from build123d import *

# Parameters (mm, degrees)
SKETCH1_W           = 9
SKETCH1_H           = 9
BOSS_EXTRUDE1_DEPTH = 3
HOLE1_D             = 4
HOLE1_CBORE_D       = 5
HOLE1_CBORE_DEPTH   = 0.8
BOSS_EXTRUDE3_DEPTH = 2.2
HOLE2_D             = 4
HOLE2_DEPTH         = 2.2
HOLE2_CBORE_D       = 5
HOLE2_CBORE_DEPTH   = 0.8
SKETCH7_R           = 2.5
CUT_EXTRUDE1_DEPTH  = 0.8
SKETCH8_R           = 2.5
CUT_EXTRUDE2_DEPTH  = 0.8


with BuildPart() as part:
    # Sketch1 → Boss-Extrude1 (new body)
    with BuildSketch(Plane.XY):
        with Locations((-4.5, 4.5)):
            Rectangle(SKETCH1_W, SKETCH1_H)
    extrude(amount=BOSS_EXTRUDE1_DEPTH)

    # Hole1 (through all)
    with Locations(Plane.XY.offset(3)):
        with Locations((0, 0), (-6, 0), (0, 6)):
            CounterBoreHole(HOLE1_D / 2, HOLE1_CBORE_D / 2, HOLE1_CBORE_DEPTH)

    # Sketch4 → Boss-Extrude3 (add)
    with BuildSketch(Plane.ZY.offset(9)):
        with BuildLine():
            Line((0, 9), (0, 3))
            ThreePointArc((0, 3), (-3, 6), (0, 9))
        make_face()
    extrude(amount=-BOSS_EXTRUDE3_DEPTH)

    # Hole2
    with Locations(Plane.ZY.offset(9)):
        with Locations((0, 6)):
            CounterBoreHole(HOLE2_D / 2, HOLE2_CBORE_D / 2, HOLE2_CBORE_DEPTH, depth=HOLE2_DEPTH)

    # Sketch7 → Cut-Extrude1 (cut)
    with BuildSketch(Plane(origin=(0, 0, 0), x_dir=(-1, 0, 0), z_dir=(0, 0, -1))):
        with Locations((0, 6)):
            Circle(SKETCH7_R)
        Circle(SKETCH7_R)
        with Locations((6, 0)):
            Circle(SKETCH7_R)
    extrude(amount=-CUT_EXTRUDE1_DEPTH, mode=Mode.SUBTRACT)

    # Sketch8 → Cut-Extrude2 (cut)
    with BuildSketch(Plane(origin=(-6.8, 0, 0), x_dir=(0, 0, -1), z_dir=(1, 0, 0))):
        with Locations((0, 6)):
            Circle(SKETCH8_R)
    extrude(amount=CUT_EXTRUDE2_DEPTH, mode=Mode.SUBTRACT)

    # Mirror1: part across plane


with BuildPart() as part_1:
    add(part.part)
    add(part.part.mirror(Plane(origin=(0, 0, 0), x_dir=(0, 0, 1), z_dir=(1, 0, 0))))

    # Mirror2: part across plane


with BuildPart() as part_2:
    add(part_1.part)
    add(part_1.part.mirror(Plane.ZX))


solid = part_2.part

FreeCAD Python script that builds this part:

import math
import FreeCAD as App
import Part
import Sketcher

doc = App.newDocument("Part")
body = doc.addObject("PartDesign::Body", "Body")

# Sketch on XY plane
sketch1 = body.newObject("Sketcher::SketchObject", "Sketch")
sketch1.AttachmentSupport = (doc.getObject("XY_Plane"), [""])
sketch1.MapMode = "FlatFace"
sketch1.addGeometry(Part.LineSegment(App.Vector(-9, 9, 0), App.Vector(-9, 0, 0)), False)
sketch1.addGeometry(Part.LineSegment(App.Vector(-9, 0, 0), App.Vector(0, 0, 0)), False)
sketch1.addGeometry(Part.LineSegment(App.Vector(0, 0, 0), App.Vector(0, 9, 0)), False)
sketch1.addGeometry(Part.LineSegment(App.Vector(0, 9, 0), App.Vector(-9, 9, 0)), False)
sketch1.addConstraint(Sketcher.Constraint("Coincident", 0, 2, 1, 1))
sketch1.addConstraint(Sketcher.Constraint("Coincident", 1, 2, 2, 1))
sketch1.addConstraint(Sketcher.Constraint("Coincident", 2, 2, 3, 1))
sketch1.addConstraint(Sketcher.Constraint("Coincident", 3, 2, 0, 1))
sketch1.addConstraint(Sketcher.Constraint("Vertical", 0))
sketch1.addConstraint(Sketcher.Constraint("Horizontal", 1))
sketch1.addConstraint(Sketcher.Constraint("Vertical", 2))
sketch1.addConstraint(Sketcher.Constraint("Horizontal", 3))
sketch1.addConstraint(Sketcher.Constraint("Coincident", 1, 2, -1, 1))
sketch1.addConstraint(Sketcher.Constraint("Equal", 3, 0))
sketch1.addConstraint(Sketcher.Constraint("DistanceX", 1, 1, 1, 2, 9.0))
pad1 = body.newObject("PartDesign::Pad", "Pad")
pad1.Profile = sketch1
pad1.Length = 3

# Sketch on XY plane
sketch2 = body.newObject("Sketcher::SketchObject", "Sketch001")
sketch2.AttachmentSupport = (doc.getObject("XY_Plane"), [""])
sketch2.MapMode = "FlatFace"
sketch2.AttachmentOffset = App.Placement(App.Vector(0, 0, 3), App.Rotation())
sketch2.addGeometry(Part.Circle(App.Vector(0, 0, 0), App.Vector(0, 0, 1), 2), False)
sketch2.addGeometry(Part.Circle(App.Vector(-6, 0, 0), App.Vector(0, 0, 1), 2), False)
sketch2.addGeometry(Part.Circle(App.Vector(0, 6, 0), App.Vector(0, 0, 1), 2), False)
sketch2.addConstraint(Sketcher.Constraint("Coincident", 0, 3, -1, 1))
sketch2.addConstraint(Sketcher.Constraint("Equal", 0, 1))
sketch2.addConstraint(Sketcher.Constraint("Equal", 1, 2))
sketch2.addConstraint(Sketcher.Constraint("PointOnObject", 1, 3, -1))
sketch2.addConstraint(Sketcher.Constraint("PointOnObject", 2, 3, -2))
sketch2.addConstraint(Sketcher.Constraint("Diameter", 0, 4.0))
sketch2.addConstraint(Sketcher.Constraint("DistanceX", 1, 3, -1, 1, 6.0))
sketch2.addConstraint(Sketcher.Constraint("DistanceY", -1, 1, 2, 3, 6.0))
doc.recompute()
hole = body.newObject("PartDesign::Hole", "Hole")
hole.Profile = sketch2
hole.ThreadType = "None"
hole.Diameter = 4
hole.DepthType = "ThroughAll"
hole.HoleCutType = "Counterbore"
hole.HoleCutDiameter = 5
hole.HoleCutDepth = 0.8

# Sketch on YZ plane
sketch3 = body.newObject("Sketcher::SketchObject", "Sketch002")
sketch3.AttachmentSupport = (doc.getObject("YZ_Plane"), [""])
sketch3.MapMode = "FlatFace"
sketch3.AttachmentOffset = App.Placement(App.Vector(0, 0, -9), App.Rotation())
sketch3.addGeometry(Part.LineSegment(App.Vector(3, 0, 0), App.Vector(9, 0, 0)), False)
sketch3.addGeometry(Part.ArcOfCircle(Part.Circle(App.Vector(6, 0, 0), App.Vector(0, 0, 1), 3), math.radians(180), math.radians(360)), False)
sketch3.addConstraint(Sketcher.Constraint("Coincident", 0, 1, 1, 1))
sketch3.addConstraint(Sketcher.Constraint("Coincident", 1, 2, 0, 2))
sketch3.addConstraint(Sketcher.Constraint("Horizontal", 0))
sketch3.addConstraint(Sketcher.Constraint("PointOnObject", 1, 3, -1))
sketch3.addConstraint(Sketcher.Constraint("PointOnObject", 0, 1, -1))
sketch3.addConstraint(Sketcher.Constraint("Radius", 1, 3.0))
sketch3.addConstraint(Sketcher.Constraint("DistanceX", -1, 1, 1, 3, 6.0))
pad2 = body.newObject("PartDesign::Pad", "Pad001")
pad2.Profile = sketch3
pad2.Length = 2.2

# Sketch on YZ plane
sketch4 = body.newObject("Sketcher::SketchObject", "Sketch003")
sketch4.AttachmentSupport = (doc.getObject("YZ_Plane"), [""])
sketch4.MapMode = "FlatFace"
sketch4.AttachmentOffset = App.Placement(App.Vector(0, 0, -9), App.Rotation())
sketch4.addGeometry(Part.Circle(App.Vector(6, 0, 0), App.Vector(0, 0, 1), 2), False)
sketch4.addConstraint(Sketcher.Constraint("PointOnObject", 0, 3, -1))
sketch4.addConstraint(Sketcher.Constraint("Diameter", 0, 4.0))
sketch4.addConstraint(Sketcher.Constraint("DistanceX", -1, 1, 0, 3, 6.0))
doc.recompute()
hole2 = body.newObject("PartDesign::Hole", "Hole001")
hole2.Profile = sketch4
hole2.ThreadType = "None"
hole2.Diameter = 4
hole2.DepthType = "Dimension"
hole2.Depth = 2.2
hole2.DrillPoint = "Flat"
hole2.HoleCutType = "Counterbore"
hole2.HoleCutDiameter = 5
hole2.HoleCutDepth = 0.8
hole2.Reversed = True

# Sketch on XY plane
sketch5 = body.newObject("Sketcher::SketchObject", "Sketch004")
sketch5.AttachmentSupport = (doc.getObject("XY_Plane"), [""])
sketch5.MapMode = "FlatFace"
sketch5.addGeometry(Part.Circle(App.Vector(0, 6, 0), App.Vector(0, 0, 1), 2.5), False)
sketch5.addGeometry(Part.Circle(App.Vector(0, 0, 0), App.Vector(0, 0, 1), 2.5), False)
sketch5.addGeometry(Part.Circle(App.Vector(-6, 0, 0), App.Vector(0, 0, 1), 2.5), False)
sketch5.addConstraint(Sketcher.Constraint("Coincident", 1, 3, -1, 1))
sketch5.addConstraint(Sketcher.Constraint("Equal", 0, 1))
sketch5.addConstraint(Sketcher.Constraint("Equal", 1, 2))
sketch5.addConstraint(Sketcher.Constraint("PointOnObject", 0, 3, -2))
sketch5.addConstraint(Sketcher.Constraint("PointOnObject", 2, 3, -1))
sketch5.addConstraint(Sketcher.Constraint("Diameter", 0, 5.0))
sketch5.addConstraint(Sketcher.Constraint("DistanceY", -1, 1, 0, 3, 6.0))
sketch5.addConstraint(Sketcher.Constraint("DistanceX", 2, 3, -1, 1, 6.0))
pocket1 = body.newObject("PartDesign::Pocket", "Pocket")
pocket1.Profile = sketch5
pocket1.Length = 0.8
pocket1.Reversed = True

# Sketch on YZ plane
sketch6 = body.newObject("Sketcher::SketchObject", "Sketch005")
sketch6.AttachmentSupport = (doc.getObject("YZ_Plane"), [""])
sketch6.MapMode = "FlatFace"
sketch6.AttachmentOffset = App.Placement(App.Vector(0, 0, -6.8), App.Rotation())
sketch6.addGeometry(Part.Circle(App.Vector(6, 0, 0), App.Vector(0, 0, 1), 2.5), False)
sketch6.addConstraint(Sketcher.Constraint("PointOnObject", 0, 3, -1))
sketch6.addConstraint(Sketcher.Constraint("Diameter", 0, 5.0))
sketch6.addConstraint(Sketcher.Constraint("DistanceX", -1, 1, 0, 3, 6.0))
pocket2 = body.newObject("PartDesign::Pocket", "Pocket001")
pocket2.Profile = sketch6
pocket2.Length = 0.8
pocket2.Reversed = True
body2 = doc.addObject("PartDesign::Body", "Body001")
doc.recompute()

body2.BaseFeature = body
doc.recompute()

mirroring = doc.addObject("Part::Mirroring", "Mirroring")
mirroring.Source = body
mirroring.Base = App.Vector(0, 0, 0)
mirroring.Normal = App.Vector(1, 0, 0)
body3 = doc.addObject("PartDesign::Body", "Body002")
body3.BaseFeature = mirroring
boolean = body2.newObject("PartDesign::Boolean", "Boolean")
boolean.Type = "Fuse"
boolean.addObjects([body3])
doc.recompute()
body4 = doc.addObject("PartDesign::Body", "Body003")
doc.recompute()

body4.BaseFeature = body2
doc.recompute()

mirroring2 = doc.addObject("Part::Mirroring", "Mirroring001")
mirroring2.Source = body2
mirroring2.Base = App.Vector(0, 0, 0)
mirroring2.Normal = App.Vector(0, 1, 0)
body5 = doc.addObject("PartDesign::Body", "Body004")
body5.BaseFeature = mirroring2
boolean2 = body4.newObject("PartDesign::Boolean", "Boolean001")
boolean2.Type = "Fuse"
boolean2.addObjects([body5])
doc.recompute()
mirroring.Visibility = False
mirroring2.Visibility = False

doc.recompute()
